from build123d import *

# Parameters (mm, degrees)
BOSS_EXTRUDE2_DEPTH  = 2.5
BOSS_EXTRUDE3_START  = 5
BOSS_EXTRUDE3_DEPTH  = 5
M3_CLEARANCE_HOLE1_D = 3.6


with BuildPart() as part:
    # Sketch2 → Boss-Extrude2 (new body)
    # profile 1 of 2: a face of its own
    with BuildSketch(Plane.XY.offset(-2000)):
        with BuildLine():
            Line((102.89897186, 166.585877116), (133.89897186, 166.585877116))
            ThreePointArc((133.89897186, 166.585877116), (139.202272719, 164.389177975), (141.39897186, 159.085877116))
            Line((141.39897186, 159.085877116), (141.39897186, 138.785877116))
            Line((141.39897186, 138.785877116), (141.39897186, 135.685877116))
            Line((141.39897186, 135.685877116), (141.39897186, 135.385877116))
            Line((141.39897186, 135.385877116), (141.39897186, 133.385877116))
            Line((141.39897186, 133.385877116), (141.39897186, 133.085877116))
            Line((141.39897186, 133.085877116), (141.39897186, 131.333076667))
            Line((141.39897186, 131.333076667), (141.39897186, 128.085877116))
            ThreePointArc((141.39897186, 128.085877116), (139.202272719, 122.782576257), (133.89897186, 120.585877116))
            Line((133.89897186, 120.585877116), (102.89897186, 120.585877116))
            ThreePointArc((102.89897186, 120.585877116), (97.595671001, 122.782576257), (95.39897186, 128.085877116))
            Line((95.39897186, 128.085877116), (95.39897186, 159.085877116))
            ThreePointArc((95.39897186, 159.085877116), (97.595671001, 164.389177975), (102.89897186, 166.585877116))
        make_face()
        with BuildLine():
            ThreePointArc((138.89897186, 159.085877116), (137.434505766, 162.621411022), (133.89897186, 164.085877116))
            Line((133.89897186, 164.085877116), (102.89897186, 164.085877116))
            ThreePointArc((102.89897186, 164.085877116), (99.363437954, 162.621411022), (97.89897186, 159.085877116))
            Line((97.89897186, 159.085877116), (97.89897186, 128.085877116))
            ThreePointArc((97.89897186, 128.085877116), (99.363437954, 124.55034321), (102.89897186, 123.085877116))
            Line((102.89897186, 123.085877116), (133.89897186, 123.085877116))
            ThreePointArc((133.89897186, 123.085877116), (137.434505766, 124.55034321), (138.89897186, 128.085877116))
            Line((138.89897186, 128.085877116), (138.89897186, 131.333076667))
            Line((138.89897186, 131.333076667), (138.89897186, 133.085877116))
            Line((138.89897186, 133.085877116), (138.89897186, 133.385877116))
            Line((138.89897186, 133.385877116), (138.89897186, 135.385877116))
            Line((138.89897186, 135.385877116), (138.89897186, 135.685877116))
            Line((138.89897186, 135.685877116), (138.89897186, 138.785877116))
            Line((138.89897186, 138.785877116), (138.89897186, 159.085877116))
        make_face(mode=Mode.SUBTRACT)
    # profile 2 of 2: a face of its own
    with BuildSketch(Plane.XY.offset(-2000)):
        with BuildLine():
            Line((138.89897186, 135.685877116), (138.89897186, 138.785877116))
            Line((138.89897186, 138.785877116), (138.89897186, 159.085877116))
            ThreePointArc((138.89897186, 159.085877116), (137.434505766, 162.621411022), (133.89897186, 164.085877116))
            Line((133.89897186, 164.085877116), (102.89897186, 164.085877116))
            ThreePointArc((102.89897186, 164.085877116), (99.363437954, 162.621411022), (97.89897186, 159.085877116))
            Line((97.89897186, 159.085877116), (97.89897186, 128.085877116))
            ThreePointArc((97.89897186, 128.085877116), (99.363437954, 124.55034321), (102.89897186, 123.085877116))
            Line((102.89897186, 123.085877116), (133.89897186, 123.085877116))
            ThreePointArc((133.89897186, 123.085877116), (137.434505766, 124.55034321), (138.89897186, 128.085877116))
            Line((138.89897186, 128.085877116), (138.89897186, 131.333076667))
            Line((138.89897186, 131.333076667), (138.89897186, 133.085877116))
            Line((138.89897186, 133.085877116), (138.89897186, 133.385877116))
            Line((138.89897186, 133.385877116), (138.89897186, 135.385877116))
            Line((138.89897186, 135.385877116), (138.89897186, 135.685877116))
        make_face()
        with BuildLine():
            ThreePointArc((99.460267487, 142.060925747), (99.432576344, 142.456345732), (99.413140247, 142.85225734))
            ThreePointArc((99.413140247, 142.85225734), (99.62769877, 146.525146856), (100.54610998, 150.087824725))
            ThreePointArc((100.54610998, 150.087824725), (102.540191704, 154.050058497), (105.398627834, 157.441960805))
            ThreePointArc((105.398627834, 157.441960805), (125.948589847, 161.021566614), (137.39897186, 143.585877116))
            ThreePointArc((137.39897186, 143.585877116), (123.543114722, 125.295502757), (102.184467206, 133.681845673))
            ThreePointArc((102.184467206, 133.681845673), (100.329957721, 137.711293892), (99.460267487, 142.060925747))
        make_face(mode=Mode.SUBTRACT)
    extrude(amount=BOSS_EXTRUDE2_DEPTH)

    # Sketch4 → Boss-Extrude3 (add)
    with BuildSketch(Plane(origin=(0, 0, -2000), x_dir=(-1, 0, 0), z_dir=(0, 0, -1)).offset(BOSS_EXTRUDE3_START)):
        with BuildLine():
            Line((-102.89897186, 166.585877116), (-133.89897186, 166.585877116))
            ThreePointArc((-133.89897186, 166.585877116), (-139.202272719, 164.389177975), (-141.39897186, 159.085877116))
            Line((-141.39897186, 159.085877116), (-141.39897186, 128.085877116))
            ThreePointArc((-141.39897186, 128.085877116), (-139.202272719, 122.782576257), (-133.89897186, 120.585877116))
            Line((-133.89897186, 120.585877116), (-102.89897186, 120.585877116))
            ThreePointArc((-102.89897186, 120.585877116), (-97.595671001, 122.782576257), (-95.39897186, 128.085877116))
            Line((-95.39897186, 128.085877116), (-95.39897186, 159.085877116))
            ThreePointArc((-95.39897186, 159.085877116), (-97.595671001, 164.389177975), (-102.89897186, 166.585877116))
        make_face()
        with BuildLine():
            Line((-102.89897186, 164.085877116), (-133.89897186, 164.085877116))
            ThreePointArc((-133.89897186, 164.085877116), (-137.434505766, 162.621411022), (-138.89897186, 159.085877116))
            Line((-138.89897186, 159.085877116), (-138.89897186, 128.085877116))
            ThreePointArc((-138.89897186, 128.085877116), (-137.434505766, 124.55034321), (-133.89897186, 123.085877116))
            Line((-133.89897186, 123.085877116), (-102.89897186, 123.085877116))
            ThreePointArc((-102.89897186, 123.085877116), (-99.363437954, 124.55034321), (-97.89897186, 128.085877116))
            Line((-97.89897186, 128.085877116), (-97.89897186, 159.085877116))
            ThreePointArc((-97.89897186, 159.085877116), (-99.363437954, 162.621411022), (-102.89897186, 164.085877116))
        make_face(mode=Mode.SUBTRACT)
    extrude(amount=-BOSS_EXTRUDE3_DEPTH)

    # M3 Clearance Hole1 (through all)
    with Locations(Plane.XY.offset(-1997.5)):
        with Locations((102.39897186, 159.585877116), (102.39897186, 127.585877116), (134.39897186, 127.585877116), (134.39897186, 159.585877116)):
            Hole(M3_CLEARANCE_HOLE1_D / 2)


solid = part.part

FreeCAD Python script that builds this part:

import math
import FreeCAD as App
import Part
import Sketcher
from FreeCAD import Vector

doc = App.newDocument("Part")
body = doc.addObject("PartDesign::Body", "Body")

sketch1 = doc.addObject("Sketcher::SketchObject", "Sketch")
body.addObject(sketch1)
sketch1.AttachmentSupport = (doc.XY_Plane, [""])
sketch1.MapMode = "FlatFace"
sketch1.AttachmentOffset = App.Placement(Vector(0, 0, -2000), App.Rotation())
sketch1.addGeometry([
    Part.LineSegment(Vector(133.9, 166.6, 0), Vector(102.9, 166.6, 0)),
    Part.ArcOfCircle(Part.Circle(Vector(102.9, 159.1, 0), Vector(0, 0, 1), 7.5), math.radians(90), math.radians(180)),
    Part.LineSegment(Vector(95.4, 159.1, 0), Vector(95.4, 128.1, 0)),
    Part.ArcOfCircle(Part.Circle(Vector(102.9, 128.1, 0), Vector(0, 0, 1), 7.5), math.radians(180), math.radians(270)),
    Part.LineSegment(Vector(102.9, 120.6, 0), Vector(133.9, 120.6, 0)),
    Part.ArcOfCircle(Part.Circle(Vector(133.9, 128.1, 0), Vector(0, 0, 1), 7.5), math.radians(-90), math.radians(0)),
    Part.LineSegment(Vector(141.4, 128.1, 0), Vector(141.4, 159.1, 0)),
    Part.ArcOfCircle(Part.Circle(Vector(133.9, 159.1, 0), Vector(0, 0, 1), 7.5), math.radians(0), math.radians(90)),
    Part.ArcOfCircle(Part.Circle(Vector(118.4, 143.6, 0), Vector(0, 0, 1), 19), math.radians(-149), math.radians(0)),
    Part.ArcOfCircle(Part.Circle(Vector(118.4, 143.6, 0), Vector(0, 0, 1), 19), math.radians(-175), math.radians(-149)),
    Part.ArcOfCircle(Part.Circle(Vector(118.4, 143.6, 0), Vector(0, 0, 1), 19), math.radians(-177.79), math.radians(-175.4)),
    Part.ArcOfCircle(Part.Circle(Vector(118.4, 143.6, 0), Vector(0, 0, 1), 19), math.radians(160), math.radians(182)),
    Part.ArcOfCircle(Part.Circle(Vector(118.4, 143.6, 0), Vector(0, 0, 1), 19), math.radians(133), math.radians(160)),
    Part.ArcOfCircle(Part.Circle(Vector(118.4, 143.6, 0), Vector(0, 0, 1), 19), math.radians(0), math.radians(133)),
], False)
sketch1.addConstraint([
    Sketcher.Constraint("Tangent", 0, 2, 1, 1),
    Sketcher.Constraint("Tangent", 1, 2, 2, 1),
    Sketcher.Constraint("Tangent", 2, 2, 3, 1),
    Sketcher.Constraint("Tangent", 3, 2, 4, 1),
    Sketcher.Constraint("Tangent", 4, 2, 5, 1),
    Sketcher.Constraint("Tangent", 5, 2, 6, 1),
    Sketcher.Constraint("Tangent", 6, 2, 7, 1),
    Sketcher.Constraint("Tangent", 7, 2, 0, 1),
    Sketcher.Constraint("Tangent", 8, 1, 9, 2),
    Sketcher.Constraint("Tangent", 9, 1, 10, 2),
    Sketcher.Constraint("Tangent", 10, 1, 11, 2),
    Sketcher.Constraint("Tangent", 11, 1, 12, 2),
    Sketcher.Constraint("Tangent", 12, 1, 13, 2),
    Sketcher.Constraint("Tangent", 13, 1, 8, 2),
    Sketcher.Constraint("Horizontal", 0),
    Sketcher.Constraint("Vertical", 2),
    Sketcher.Constraint("Horizontal", 4),
    Sketcher.Constraint("Vertical", 6),
    Sketcher.Constraint("Coincident", 10, 3, 8, 3),
    Sketcher.Constraint("Equal", 1, 3),
    Sketcher.Constraint("Equal", 3, 5),
    Sketcher.Constraint("Equal", 5, 7),
    Sketcher.Constraint("Equal", 10, 11),
    Sketcher.Constraint("Horizontal", 12, 3, 13, 1),
    Sketcher.Constraint("Equal", 4, 2),
    Sketcher.Constraint("Radius", 8, 19.0),
    Sketcher.Constraint("Radius", 1, 7.5),
    Sketcher.Constraint("DistanceX", 0, 2, 0, 1, 31.0),
    Sketcher.Constraint("DistanceY", 10, 3, 0, 2, 23.0),
    Sketcher.Constraint("DistanceX", 1, 2, 10, 3, 22.999999),
    Sketcher.Constraint("DistanceX", 9, 1, 8, 1, 2.7242),
    Sketcher.Constraint("DistanceY", 9, 1, 11, 1, 8.026899),
    Sketcher.Constraint("DistanceX", -1, 1, 1, 3, 102.898972),
    Sketcher.Constraint("DistanceX", -1, 1, 10, 1, 99.41314),
    Sketcher.Constraint("DistanceX", -1, 1, 11, 1, 100.54611),
    Sketcher.Constraint("DistanceY", -1, 1, 12, 1, 157.441961),
    Sketcher.Constraint("DistanceY", -1, 1, 1, 3, 159.085877),
])
pad1 = doc.addObject("PartDesign::Pad", "Pad")
body.addObject(pad1)
pad1.Profile = sketch1
pad1.Length = 2.5

sketch2 = doc.addObject("Sketcher::SketchObject", "Sketch001")
body.addObject(sketch2)
sketch2.AttachmentSupport = (doc.XY_Plane, [""])
sketch2.MapMode = "FlatFace"
sketch2.AttachmentOffset = App.Placement(Vector(0, 0, -2005), App.Rotation())
sketch2.addGeometry([
    Part.LineSegment(Vector(103, 167, 0), Vector(134, 167, 0)),
    Part.ArcOfCircle(Part.Circle(Vector(134, 159, 0), Vector(0, 0, 1), 8), math.radians(0), math.radians(90)),
    Part.LineSegment(Vector(141, 159, 0), Vector(141, 128, 0)),
    Part.ArcOfCircle(Part.Circle(Vector(134, 128, 0), Vector(0, 0, 1), 8), math.radians(-90), math.radians(0)),
    Part.LineSegment(Vector(134, 121, 0), Vector(103, 121, 0)),
    Part.ArcOfCircle(Part.Circle(Vector(103, 128, 0), Vector(0, 0, 1), 8), math.radians(180), math.radians(270)),
    Part.LineSegment(Vector(95, 128, 0), Vector(95, 159, 0)),
    Part.ArcOfCircle(Part.Circle(Vector(103, 159, 0), Vector(0, 0, 1), 8), math.radians(90), math.radians(180)),
    Part.LineSegment(Vector(134, 164, 0), Vector(103, 164, 0)),
    Part.ArcOfCircle(Part.Circle(Vector(103, 159, 0), Vector(0, 0, 1), 5), math.radians(90), math.radians(180)),
    Part.LineSegment(Vector(98, 159, 0), Vector(98, 128, 0)),
    Part.ArcOfCircle(Part.Circle(Vector(103, 128, 0), Vector(0, 0, 1), 5), math.radians(180), math.radians(270)),
    Part.LineSegment(Vector(103, 123, 0), Vector(134, 123, 0)),
    Part.ArcOfCircle(Part.Circle(Vector(134, 128, 0), Vector(0, 0, 1), 5), math.radians(-90), math.radians(0)),
    Part.LineSegment(Vector(139, 128, 0), Vector(139, 159, 0)),
    Part.ArcOfCircle(Part.Circle(Vector(134, 159, 0), Vector(0, 0, 1), 5), math.radians(0), math.radians(90)),
], False)
sketch2.addConstraint([
    Sketcher.Constraint("Tangent", 0, 2, 1, 2),
    Sketcher.Constraint("Tangent", 1, 1, 2, 1),
    Sketcher.Constraint("Tangent", 2, 2, 3, 2),
    Sketcher.Constraint("Tangent", 3, 1, 4, 1),
    Sketcher.Constraint("Tangent", 4, 2, 5, 2),
    Sketcher.Constraint("Tangent", 5, 1, 6, 1),
    Sketcher.Constraint("Tangent", 6, 2, 7, 2),
    Sketcher.Constraint("Tangent", 7, 1, 0, 1),
    Sketcher.Constraint("Tangent", 8, 2, 9, 1),
    Sketcher.Constraint("Tangent", 9, 2, 10, 1),
    Sketcher.Constraint("Tangent", 10, 2, 11, 1),
    Sketcher.Constraint("Tangent", 11, 2, 12, 1),
    Sketcher.Constraint("Tangent", 12, 2, 13, 1),
    Sketcher.Constraint("Tangent", 13, 2, 14, 1),
    Sketcher.Constraint("Tangent", 14, 2, 15, 1),
    Sketcher.Constraint("Tangent", 15, 2, 8, 1),
    Sketcher.Constraint("Horizontal", 0),
    Sketcher.Constraint("Vertical", 2),
    Sketcher.Constraint("Horizontal", 4),
    Sketcher.Constraint("Vertical", 6),
    Sketcher.Constraint("Horizontal", 8),
    Sketcher.Constraint("Vertical", 10),
    Sketcher.Constraint("Horizontal", 12),
    Sketcher.Constraint("Vertical", 14),
    Sketcher.Constraint("Coincident", 9, 3, 7, 3),
    Sketcher.Constraint("Coincident", 11, 3, 5, 3),
    Sketcher.Constraint("Coincident", 13, 3, 3, 3),
    Sketcher.Constraint("Equal", 1, 3),
    Sketcher.Constraint("Equal", 3, 5),
    Sketcher.Constraint("Equal", 5, 7),
    Sketcher.Constraint("Equal", 13, 15),
    Sketcher.Constraint("Equal", 12, 2),
    Sketcher.Constraint("Radius", 9, 5.0),
    Sketcher.Constraint("Radius", 1, 7.5),
    Sketcher.Constraint("DistanceX", 0, 1, 0, 2, 31.0),
    Sketcher.Constraint("DistanceX", -1, 1, 1, 3, 133.898972),
    Sketcher.Constraint("DistanceY", -1, 1, 1, 3, 159.085877),
])
pad2 = doc.addObject("PartDesign::Pad", "Pad001")
body.addObject(pad2)
pad2.Profile = sketch2
pad2.Length = 5

sketch3 = doc.addObject("Sketcher::SketchObject", "Sketch002")
body.addObject(sketch3)
sketch3.AttachmentSupport = (doc.XY_Plane, [""])
sketch3.MapMode = "FlatFace"
sketch3.AttachmentOffset = App.Placement(Vector(0, 0, -1997.5), App.Rotation())
sketch3.addGeometry([
    Part.Circle(Vector(102.4, 159.6, 0), Vector(0, 0, 1), 1.8),
    Part.Circle(Vector(102.4, 127.6, 0), Vector(0, 0, 1), 1.8),
    Part.Circle(Vector(134.4, 127.6, 0), Vector(0, 0, 1), 1.8),
    Part.Circle(Vector(134.4, 159.6, 0), Vector(0, 0, 1), 1.8),
], False)
sketch3.addConstraint([
    Sketcher.Constraint("Equal", 0, 1),
    Sketcher.Constraint("Equal", 1, 2),
    Sketcher.Constraint("Equal", 2, 3),
    Sketcher.Constraint("Horizontal", 1, 3, 2, 3),
    Sketcher.Constraint("Horizontal", 0, 3, 3, 3),
    Sketcher.Constraint("Vertical", 0, 3, 1, 3),
    Sketcher.Constraint("Vertical", 2, 3, 3, 3),
    Sketcher.Constraint("Diameter", 0, 3.6),
    Sketcher.Constraint("DistanceY", 1, 3, 0, 3, 32.0),
    Sketcher.Constraint("DistanceX", 1, 3, 2, 3, 32.0),
    Sketcher.Constraint("DistanceX", -1, 1, 0, 3, 102.398972),
    Sketcher.Constraint("DistanceY", -1, 1, 0, 3, 159.585877),
])
doc.recompute()
hole = doc.addObject("PartDesign::Hole", "Hole")
body.addObject(hole)
hole.Profile = sketch3
hole.ThreadType = "None"
hole.Diameter = 3.6
hole.DepthType = "ThroughAll"

doc.recompute()
